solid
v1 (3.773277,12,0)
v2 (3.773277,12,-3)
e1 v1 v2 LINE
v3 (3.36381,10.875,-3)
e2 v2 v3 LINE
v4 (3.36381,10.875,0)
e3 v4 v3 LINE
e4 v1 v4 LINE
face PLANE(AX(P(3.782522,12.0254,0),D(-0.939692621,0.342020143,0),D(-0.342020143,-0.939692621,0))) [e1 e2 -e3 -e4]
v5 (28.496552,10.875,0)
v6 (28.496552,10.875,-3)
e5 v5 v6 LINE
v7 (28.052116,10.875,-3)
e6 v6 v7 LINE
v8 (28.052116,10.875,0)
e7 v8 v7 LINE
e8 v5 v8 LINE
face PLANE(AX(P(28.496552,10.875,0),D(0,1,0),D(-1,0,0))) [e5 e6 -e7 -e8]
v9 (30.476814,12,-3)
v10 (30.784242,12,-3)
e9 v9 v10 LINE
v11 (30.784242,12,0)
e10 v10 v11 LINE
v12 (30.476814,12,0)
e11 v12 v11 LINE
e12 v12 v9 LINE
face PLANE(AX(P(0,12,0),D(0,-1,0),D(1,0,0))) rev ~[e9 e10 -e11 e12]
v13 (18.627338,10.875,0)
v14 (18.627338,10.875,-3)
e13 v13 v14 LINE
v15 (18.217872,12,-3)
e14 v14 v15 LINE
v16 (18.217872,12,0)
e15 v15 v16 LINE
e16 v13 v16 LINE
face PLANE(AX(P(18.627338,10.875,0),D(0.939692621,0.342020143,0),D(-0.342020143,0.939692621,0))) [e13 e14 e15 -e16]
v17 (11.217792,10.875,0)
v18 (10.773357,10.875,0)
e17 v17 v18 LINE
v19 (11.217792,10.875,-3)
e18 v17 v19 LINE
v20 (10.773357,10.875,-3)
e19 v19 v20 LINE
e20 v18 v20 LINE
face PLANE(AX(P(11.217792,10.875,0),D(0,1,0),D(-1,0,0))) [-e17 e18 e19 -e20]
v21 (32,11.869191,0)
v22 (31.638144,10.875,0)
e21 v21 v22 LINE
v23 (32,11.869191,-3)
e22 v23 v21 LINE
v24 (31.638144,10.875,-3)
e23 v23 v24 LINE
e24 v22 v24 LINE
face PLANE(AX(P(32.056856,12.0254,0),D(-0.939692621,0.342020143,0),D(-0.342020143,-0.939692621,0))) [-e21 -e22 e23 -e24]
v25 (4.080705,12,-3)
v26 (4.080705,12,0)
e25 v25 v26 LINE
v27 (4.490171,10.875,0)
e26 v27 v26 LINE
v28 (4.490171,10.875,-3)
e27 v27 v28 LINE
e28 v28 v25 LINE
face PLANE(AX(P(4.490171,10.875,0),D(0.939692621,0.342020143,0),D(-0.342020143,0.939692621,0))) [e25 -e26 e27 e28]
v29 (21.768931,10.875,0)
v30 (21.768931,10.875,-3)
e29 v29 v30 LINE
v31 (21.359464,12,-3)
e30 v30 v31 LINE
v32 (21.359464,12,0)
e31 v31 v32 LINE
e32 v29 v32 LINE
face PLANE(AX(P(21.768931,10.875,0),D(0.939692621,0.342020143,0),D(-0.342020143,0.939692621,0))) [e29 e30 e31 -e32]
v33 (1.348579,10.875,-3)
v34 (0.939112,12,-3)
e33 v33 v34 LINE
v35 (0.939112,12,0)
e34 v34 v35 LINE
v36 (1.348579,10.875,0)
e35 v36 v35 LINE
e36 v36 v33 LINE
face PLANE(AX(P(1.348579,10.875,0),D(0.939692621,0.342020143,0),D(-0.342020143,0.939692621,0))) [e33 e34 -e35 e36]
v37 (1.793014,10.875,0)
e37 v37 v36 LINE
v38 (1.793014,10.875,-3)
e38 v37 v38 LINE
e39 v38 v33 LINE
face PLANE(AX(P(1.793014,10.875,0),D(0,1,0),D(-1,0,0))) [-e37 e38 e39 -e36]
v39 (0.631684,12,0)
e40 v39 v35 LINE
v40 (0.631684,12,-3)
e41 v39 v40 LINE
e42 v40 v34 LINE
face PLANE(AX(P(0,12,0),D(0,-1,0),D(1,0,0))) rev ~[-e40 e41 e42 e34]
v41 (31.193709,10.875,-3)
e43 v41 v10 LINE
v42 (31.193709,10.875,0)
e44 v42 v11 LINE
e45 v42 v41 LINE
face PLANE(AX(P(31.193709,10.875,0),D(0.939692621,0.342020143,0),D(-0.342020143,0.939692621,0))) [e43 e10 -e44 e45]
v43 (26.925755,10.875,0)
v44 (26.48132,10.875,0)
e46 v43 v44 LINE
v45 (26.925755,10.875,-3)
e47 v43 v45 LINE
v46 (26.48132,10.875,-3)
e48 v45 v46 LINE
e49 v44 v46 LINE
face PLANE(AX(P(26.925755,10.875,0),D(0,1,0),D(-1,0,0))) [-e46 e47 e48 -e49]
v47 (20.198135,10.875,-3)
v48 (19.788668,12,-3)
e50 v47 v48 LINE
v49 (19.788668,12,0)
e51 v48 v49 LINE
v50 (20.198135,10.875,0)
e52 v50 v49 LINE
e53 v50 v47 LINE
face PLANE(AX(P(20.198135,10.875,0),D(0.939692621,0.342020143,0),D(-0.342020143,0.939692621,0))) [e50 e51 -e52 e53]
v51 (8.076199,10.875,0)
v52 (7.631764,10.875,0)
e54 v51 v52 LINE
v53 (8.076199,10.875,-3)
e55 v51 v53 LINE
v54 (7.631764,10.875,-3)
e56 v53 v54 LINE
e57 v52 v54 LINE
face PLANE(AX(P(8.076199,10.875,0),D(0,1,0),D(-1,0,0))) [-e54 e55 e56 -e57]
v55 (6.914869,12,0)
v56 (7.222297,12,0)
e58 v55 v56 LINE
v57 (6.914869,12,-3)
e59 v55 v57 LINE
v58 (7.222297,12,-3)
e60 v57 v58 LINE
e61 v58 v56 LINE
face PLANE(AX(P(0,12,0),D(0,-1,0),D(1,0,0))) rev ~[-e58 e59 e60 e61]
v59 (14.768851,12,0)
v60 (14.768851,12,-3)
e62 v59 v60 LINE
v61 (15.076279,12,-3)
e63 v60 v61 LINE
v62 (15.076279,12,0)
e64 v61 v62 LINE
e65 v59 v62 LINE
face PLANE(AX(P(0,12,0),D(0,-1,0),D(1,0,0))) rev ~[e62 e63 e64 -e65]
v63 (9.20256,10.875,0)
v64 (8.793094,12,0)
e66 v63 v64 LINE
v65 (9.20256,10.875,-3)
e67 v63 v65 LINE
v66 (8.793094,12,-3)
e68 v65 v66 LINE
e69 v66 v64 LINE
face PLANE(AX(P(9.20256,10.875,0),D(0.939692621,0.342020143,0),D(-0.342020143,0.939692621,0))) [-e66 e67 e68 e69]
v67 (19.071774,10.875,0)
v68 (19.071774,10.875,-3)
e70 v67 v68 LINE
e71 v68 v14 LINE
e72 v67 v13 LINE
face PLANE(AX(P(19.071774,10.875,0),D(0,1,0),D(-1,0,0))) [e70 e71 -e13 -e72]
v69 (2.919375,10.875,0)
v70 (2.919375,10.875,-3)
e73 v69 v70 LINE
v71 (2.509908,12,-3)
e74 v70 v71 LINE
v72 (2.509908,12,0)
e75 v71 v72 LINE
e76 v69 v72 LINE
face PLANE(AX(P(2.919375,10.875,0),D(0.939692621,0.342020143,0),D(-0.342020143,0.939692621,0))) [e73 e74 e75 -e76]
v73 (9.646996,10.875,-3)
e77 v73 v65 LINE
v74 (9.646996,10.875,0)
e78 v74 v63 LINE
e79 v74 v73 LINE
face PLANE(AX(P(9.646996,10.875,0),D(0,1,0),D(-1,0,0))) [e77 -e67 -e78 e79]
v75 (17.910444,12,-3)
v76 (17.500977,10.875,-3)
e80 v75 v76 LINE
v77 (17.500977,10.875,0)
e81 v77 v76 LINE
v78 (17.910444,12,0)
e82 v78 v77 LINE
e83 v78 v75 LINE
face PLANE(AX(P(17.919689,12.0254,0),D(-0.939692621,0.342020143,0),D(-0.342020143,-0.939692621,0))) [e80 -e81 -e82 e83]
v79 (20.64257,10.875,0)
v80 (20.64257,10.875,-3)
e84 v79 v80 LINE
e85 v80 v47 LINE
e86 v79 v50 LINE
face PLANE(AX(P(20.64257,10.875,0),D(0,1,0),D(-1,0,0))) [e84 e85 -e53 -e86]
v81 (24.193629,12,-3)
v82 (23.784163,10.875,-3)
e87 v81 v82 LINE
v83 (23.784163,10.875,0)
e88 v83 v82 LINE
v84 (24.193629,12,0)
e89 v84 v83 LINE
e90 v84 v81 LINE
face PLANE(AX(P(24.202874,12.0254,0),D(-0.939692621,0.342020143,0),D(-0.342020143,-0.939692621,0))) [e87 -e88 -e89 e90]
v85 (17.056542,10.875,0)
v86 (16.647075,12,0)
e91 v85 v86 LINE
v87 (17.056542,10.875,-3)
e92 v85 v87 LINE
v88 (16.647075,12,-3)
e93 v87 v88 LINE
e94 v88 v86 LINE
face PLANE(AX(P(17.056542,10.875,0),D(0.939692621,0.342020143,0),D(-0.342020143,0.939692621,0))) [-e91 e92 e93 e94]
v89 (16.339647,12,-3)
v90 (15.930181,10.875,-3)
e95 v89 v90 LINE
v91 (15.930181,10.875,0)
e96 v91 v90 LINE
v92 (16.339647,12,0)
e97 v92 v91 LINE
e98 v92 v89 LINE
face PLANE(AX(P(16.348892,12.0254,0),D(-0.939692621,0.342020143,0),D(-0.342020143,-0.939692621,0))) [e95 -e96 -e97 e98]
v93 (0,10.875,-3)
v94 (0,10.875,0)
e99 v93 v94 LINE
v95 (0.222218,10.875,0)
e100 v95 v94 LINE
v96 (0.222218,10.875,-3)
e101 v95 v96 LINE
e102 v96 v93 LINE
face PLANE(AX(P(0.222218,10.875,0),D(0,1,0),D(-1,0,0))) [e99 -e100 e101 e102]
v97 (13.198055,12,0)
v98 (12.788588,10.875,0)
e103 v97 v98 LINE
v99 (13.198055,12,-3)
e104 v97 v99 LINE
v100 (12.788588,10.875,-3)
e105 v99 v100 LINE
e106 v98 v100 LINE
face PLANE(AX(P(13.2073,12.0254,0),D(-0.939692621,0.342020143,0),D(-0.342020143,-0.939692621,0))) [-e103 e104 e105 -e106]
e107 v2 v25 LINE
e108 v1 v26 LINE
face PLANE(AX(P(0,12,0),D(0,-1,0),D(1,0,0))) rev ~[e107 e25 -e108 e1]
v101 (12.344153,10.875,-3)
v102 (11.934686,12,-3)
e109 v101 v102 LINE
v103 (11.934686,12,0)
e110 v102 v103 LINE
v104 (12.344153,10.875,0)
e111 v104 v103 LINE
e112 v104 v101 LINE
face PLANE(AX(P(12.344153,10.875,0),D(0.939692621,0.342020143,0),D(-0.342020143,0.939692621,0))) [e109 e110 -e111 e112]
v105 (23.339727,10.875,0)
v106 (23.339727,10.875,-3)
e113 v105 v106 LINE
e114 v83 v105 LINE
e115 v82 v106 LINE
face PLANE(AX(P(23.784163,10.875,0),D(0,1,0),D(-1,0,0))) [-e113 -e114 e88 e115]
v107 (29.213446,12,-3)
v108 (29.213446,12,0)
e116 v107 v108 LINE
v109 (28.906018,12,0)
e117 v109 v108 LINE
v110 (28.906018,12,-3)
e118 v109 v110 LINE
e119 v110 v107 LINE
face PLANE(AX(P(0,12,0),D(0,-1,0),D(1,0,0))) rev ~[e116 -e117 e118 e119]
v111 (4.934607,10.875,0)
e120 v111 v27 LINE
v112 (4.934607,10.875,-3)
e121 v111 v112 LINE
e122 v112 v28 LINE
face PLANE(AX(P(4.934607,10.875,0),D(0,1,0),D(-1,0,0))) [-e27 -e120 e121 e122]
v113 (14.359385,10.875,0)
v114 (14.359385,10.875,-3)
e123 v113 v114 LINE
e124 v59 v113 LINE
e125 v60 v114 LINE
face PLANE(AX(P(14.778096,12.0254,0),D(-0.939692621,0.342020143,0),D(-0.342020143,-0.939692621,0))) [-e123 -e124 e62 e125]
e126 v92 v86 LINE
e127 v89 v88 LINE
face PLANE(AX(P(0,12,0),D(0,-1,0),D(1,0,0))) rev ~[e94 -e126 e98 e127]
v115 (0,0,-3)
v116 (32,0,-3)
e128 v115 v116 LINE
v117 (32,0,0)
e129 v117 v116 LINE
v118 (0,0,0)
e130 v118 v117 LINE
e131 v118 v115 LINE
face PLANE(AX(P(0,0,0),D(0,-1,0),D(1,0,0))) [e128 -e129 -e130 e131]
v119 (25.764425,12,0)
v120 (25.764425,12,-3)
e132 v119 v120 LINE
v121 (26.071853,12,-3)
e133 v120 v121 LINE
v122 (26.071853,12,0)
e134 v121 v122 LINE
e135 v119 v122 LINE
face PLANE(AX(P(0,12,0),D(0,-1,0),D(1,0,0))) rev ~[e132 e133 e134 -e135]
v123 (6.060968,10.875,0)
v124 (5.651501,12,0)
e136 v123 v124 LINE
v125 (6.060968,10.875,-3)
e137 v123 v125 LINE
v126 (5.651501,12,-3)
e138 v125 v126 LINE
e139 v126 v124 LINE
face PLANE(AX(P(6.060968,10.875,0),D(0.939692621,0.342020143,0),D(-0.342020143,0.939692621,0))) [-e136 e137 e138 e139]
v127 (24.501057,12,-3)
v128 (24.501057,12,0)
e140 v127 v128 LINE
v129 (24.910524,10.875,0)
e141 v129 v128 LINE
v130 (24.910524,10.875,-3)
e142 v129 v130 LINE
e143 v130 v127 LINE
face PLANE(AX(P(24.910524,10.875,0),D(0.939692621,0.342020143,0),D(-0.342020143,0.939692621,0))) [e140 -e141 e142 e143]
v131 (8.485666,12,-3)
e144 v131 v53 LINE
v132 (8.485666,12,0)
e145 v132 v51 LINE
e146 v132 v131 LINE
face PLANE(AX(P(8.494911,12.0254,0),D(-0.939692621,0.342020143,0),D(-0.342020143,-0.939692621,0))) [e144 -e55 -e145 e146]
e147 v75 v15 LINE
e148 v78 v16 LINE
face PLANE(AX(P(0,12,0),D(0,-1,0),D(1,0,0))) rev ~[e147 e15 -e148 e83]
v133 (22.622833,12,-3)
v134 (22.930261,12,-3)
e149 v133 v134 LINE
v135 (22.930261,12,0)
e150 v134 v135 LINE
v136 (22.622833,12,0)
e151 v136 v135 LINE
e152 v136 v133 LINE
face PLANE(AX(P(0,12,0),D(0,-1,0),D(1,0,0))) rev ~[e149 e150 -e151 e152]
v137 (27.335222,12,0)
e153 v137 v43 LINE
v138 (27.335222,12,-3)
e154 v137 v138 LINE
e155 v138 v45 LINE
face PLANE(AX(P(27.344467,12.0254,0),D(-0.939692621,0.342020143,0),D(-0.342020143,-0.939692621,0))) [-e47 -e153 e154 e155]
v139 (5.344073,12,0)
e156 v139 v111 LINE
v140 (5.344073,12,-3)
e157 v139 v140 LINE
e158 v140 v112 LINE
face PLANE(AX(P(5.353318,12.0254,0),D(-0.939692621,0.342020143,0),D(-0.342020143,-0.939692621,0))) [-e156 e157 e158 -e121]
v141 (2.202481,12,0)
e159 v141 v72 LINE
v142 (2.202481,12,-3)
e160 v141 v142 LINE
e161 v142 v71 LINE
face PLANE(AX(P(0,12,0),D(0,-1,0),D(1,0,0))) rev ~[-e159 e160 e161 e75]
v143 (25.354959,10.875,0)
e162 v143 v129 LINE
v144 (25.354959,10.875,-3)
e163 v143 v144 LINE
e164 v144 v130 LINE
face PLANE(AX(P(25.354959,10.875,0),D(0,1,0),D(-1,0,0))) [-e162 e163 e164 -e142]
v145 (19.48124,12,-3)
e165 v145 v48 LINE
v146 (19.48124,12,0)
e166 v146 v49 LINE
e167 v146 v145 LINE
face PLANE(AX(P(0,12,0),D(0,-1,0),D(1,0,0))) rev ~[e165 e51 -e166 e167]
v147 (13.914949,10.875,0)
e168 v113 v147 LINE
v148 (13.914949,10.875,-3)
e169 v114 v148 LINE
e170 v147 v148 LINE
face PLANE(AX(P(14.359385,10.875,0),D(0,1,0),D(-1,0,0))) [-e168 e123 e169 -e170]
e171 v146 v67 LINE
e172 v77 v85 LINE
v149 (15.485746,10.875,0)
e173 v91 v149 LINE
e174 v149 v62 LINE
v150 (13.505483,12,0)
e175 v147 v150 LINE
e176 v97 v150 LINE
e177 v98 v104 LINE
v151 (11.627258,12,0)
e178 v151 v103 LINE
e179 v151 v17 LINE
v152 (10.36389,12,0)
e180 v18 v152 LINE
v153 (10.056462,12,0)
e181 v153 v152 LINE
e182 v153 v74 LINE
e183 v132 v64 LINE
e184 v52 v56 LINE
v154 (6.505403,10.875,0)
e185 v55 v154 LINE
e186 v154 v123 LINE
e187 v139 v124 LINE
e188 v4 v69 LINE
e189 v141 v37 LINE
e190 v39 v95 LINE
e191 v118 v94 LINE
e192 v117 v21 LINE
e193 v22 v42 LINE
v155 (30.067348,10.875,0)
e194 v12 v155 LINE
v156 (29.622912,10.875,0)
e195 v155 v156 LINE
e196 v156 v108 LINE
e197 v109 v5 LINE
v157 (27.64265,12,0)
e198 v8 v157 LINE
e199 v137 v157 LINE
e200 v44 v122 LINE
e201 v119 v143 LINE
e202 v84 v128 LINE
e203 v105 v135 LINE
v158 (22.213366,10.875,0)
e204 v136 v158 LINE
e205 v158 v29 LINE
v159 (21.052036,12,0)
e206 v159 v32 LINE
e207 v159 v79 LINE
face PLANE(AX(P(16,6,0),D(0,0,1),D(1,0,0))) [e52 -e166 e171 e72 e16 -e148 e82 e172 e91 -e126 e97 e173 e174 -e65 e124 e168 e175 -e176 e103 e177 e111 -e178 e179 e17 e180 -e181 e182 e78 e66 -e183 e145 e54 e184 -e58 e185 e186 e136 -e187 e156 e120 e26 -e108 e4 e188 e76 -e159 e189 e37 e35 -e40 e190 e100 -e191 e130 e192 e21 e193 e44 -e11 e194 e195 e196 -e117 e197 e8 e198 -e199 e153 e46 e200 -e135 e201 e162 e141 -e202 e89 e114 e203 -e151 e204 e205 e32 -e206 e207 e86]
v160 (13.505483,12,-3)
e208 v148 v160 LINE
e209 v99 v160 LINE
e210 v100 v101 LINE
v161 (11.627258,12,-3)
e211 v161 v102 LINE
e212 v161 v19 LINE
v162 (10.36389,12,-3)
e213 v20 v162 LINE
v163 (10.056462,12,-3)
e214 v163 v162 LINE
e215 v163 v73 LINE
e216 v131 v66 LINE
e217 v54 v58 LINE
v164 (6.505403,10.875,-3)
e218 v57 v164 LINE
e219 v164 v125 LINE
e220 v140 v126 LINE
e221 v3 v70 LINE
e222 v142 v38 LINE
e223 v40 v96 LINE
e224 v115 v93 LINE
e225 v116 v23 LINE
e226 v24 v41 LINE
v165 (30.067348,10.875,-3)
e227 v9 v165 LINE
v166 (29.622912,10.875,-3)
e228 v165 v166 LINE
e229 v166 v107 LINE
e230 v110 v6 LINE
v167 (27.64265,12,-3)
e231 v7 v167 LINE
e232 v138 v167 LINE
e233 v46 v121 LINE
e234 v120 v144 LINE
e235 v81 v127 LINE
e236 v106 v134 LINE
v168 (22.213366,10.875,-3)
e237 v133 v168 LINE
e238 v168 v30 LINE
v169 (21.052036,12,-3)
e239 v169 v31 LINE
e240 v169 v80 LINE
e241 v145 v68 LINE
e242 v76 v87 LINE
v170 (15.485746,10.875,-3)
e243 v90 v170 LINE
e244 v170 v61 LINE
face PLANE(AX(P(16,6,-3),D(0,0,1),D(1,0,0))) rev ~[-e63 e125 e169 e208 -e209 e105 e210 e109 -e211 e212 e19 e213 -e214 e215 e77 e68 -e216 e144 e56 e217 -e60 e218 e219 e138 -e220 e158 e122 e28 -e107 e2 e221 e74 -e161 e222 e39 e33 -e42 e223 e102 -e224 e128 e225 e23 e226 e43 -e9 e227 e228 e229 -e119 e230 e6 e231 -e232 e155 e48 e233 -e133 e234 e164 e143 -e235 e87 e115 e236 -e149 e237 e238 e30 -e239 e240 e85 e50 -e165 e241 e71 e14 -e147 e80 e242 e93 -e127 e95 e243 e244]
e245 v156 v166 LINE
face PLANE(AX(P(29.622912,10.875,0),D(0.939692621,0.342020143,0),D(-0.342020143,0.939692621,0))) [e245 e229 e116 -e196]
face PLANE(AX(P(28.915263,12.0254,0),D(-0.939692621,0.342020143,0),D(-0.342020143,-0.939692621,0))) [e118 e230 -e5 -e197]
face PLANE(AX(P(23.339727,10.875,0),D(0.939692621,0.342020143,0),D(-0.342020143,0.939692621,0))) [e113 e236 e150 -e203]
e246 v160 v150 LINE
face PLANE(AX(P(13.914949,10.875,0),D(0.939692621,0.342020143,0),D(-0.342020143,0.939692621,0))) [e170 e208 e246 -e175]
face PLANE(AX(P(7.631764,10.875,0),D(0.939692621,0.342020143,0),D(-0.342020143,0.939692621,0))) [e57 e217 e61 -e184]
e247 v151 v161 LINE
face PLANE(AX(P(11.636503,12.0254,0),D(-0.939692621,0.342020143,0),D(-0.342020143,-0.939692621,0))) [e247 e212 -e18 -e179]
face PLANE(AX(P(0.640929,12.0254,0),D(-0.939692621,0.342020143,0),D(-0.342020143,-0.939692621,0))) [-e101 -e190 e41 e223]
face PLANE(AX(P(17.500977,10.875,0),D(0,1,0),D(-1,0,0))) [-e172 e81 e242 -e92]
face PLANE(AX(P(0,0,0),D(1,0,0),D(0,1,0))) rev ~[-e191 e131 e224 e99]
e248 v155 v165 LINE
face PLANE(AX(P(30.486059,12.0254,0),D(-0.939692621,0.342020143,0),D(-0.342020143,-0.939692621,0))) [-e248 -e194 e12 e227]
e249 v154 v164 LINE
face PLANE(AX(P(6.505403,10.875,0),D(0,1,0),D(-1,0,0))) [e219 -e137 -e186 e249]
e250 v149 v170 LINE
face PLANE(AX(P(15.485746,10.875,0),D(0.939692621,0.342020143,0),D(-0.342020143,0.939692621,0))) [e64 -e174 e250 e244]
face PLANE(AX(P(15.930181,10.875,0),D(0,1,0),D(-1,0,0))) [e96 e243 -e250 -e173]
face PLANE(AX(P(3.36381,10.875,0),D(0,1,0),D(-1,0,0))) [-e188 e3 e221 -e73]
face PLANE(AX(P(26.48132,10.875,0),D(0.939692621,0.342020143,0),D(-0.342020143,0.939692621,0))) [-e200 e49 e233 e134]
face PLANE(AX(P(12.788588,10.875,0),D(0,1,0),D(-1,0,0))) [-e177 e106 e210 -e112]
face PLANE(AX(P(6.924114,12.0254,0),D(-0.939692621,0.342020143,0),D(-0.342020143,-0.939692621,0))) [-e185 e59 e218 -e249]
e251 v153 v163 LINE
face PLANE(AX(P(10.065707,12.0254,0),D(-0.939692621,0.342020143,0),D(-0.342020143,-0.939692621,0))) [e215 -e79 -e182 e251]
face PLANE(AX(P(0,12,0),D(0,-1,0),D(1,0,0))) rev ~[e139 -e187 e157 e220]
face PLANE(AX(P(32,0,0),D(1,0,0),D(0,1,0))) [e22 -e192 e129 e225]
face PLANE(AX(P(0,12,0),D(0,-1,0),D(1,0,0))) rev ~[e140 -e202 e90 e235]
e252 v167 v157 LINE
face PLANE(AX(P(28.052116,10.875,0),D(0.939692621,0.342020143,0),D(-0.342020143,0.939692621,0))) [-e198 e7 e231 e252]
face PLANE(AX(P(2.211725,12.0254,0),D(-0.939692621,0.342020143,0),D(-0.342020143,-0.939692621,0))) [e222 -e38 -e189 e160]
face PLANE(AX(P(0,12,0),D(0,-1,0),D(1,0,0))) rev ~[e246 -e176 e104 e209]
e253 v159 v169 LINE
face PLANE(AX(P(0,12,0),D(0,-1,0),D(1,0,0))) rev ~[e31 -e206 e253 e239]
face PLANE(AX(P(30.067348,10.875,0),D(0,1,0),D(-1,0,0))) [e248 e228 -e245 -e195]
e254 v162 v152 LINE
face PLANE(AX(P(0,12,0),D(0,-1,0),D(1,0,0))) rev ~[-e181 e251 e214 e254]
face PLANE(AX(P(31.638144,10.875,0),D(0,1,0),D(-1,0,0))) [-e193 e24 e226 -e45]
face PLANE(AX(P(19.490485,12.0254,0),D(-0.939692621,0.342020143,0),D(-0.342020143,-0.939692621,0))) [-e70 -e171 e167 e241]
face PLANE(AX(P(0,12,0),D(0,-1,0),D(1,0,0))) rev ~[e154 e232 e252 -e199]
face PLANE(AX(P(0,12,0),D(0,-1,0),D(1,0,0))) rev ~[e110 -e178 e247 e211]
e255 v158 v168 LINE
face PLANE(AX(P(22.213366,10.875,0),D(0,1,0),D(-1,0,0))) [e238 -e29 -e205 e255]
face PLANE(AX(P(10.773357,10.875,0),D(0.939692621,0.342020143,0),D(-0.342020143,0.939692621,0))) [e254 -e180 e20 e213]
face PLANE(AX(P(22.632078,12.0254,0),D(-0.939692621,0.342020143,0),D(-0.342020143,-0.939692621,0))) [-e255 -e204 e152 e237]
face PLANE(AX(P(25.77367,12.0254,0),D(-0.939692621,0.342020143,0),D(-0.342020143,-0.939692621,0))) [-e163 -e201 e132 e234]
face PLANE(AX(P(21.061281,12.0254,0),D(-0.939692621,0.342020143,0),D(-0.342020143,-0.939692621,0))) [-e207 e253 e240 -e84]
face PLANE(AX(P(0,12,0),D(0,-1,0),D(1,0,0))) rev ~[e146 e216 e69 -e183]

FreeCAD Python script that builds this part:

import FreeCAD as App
import Part
import Sketcher
Q = App.Units.Quantity


def add_polygon(sketch, points):
    """Adds a closed chain of lines whose ends are joined by coincident constraints."""
    first, n = sketch.GeometryCount, len(points)
    for a, b in zip(points, points[1:] + points[:1]):
        sketch.addGeometry(Part.LineSegment(App.Vector(*a, 0), App.Vector(*b, 0)), False)
    for i in range(n):
        sketch.addConstraint(Sketcher.Constraint("Coincident", first + i, 2, first + (i + 1) % n, 1))

doc = App.newDocument("Part")
body = doc.addObject("PartDesign::Body", "Body")

# Sketch on XY plane
sketch1 = doc.addObject("Sketcher::SketchObject", "Sketch")
body.addObject(sketch1)
sketch1.AttachmentSupport = (doc.XY_Plane, [""])
sketch1.MapMode = "FlatFace"
add_polygon(sketch1, [(0, 12), (0, 0), (32, 0), (32, 12)])  # lines 0-3
sketch1.addConstraint([
    Sketcher.Constraint("Vertical", 0),
    Sketcher.Constraint("Horizontal", 1),
    Sketcher.Constraint("Vertical", 2),
    Sketcher.Constraint("Horizontal", 3),
    Sketcher.Constraint("Coincident", 0, 2, -1, 1),
    Sketcher.Constraint("DistanceX", 1, 1, 1, 2, 32.0),
    Sketcher.Constraint("DistanceY", 0, 2, 0, 1, 12.0),
])
pad1 = doc.addObject("PartDesign::Pad", "Pad")
body.addObject(pad1)
pad1.Profile = sketch1
pad1.Length = 3
pad1.Reversed = True

# Sketch on XY plane
sketch2 = doc.addObject("Sketcher::SketchObject", "Sketch001")
body.addObject(sketch2)
sketch2.AttachmentSupport = (doc.XY_Plane, [""])
sketch2.MapMode = "FlatFace"
add_polygon(sketch2, [(-0.22, 10.88), (0.22, 10.88), (0.64, 12.03), (-0.64, 12.03)])  # lines 0-3
sketch2.addConstraint([
    Sketcher.Constraint("Horizontal", 0),
    Sketcher.Constraint("Horizontal", 2),
    Sketcher.Constraint("Equal", 1, 3),
    Sketcher.Constraint("Angle", 1, Q("70 deg")),
    Sketcher.Constraint("DistanceY", -1, 1, 0, 2, 10.875),
    Sketcher.Constraint("DistanceX", 2, 2, 2, 1, 1.281858),
    Sketcher.Constraint("DistanceY", -1, 1, 1, 2, 12.0254),
    Sketcher.Constraint("DistanceX", -1, 1, 1, 2, 0.640929),
])
pocket1 = doc.addObject("PartDesign::Pocket", "Pocket")
body.addObject(pocket1)
pocket1.Profile = sketch2
pocket1.Type = "ThroughAll"
doc.recompute()

linearpattern = doc.addObject("PartDesign::LinearPattern", "LinearPattern")
body.addObject(linearpattern)
linearpattern.Originals = [pocket1]
linearpattern.Direction = (doc.X_Axis, [""])
linearpattern.Mode = "offset"
linearpattern.Offset = 1.570796
linearpattern.Occurrences = 21
body.Tip = linearpattern

doc.recompute()
